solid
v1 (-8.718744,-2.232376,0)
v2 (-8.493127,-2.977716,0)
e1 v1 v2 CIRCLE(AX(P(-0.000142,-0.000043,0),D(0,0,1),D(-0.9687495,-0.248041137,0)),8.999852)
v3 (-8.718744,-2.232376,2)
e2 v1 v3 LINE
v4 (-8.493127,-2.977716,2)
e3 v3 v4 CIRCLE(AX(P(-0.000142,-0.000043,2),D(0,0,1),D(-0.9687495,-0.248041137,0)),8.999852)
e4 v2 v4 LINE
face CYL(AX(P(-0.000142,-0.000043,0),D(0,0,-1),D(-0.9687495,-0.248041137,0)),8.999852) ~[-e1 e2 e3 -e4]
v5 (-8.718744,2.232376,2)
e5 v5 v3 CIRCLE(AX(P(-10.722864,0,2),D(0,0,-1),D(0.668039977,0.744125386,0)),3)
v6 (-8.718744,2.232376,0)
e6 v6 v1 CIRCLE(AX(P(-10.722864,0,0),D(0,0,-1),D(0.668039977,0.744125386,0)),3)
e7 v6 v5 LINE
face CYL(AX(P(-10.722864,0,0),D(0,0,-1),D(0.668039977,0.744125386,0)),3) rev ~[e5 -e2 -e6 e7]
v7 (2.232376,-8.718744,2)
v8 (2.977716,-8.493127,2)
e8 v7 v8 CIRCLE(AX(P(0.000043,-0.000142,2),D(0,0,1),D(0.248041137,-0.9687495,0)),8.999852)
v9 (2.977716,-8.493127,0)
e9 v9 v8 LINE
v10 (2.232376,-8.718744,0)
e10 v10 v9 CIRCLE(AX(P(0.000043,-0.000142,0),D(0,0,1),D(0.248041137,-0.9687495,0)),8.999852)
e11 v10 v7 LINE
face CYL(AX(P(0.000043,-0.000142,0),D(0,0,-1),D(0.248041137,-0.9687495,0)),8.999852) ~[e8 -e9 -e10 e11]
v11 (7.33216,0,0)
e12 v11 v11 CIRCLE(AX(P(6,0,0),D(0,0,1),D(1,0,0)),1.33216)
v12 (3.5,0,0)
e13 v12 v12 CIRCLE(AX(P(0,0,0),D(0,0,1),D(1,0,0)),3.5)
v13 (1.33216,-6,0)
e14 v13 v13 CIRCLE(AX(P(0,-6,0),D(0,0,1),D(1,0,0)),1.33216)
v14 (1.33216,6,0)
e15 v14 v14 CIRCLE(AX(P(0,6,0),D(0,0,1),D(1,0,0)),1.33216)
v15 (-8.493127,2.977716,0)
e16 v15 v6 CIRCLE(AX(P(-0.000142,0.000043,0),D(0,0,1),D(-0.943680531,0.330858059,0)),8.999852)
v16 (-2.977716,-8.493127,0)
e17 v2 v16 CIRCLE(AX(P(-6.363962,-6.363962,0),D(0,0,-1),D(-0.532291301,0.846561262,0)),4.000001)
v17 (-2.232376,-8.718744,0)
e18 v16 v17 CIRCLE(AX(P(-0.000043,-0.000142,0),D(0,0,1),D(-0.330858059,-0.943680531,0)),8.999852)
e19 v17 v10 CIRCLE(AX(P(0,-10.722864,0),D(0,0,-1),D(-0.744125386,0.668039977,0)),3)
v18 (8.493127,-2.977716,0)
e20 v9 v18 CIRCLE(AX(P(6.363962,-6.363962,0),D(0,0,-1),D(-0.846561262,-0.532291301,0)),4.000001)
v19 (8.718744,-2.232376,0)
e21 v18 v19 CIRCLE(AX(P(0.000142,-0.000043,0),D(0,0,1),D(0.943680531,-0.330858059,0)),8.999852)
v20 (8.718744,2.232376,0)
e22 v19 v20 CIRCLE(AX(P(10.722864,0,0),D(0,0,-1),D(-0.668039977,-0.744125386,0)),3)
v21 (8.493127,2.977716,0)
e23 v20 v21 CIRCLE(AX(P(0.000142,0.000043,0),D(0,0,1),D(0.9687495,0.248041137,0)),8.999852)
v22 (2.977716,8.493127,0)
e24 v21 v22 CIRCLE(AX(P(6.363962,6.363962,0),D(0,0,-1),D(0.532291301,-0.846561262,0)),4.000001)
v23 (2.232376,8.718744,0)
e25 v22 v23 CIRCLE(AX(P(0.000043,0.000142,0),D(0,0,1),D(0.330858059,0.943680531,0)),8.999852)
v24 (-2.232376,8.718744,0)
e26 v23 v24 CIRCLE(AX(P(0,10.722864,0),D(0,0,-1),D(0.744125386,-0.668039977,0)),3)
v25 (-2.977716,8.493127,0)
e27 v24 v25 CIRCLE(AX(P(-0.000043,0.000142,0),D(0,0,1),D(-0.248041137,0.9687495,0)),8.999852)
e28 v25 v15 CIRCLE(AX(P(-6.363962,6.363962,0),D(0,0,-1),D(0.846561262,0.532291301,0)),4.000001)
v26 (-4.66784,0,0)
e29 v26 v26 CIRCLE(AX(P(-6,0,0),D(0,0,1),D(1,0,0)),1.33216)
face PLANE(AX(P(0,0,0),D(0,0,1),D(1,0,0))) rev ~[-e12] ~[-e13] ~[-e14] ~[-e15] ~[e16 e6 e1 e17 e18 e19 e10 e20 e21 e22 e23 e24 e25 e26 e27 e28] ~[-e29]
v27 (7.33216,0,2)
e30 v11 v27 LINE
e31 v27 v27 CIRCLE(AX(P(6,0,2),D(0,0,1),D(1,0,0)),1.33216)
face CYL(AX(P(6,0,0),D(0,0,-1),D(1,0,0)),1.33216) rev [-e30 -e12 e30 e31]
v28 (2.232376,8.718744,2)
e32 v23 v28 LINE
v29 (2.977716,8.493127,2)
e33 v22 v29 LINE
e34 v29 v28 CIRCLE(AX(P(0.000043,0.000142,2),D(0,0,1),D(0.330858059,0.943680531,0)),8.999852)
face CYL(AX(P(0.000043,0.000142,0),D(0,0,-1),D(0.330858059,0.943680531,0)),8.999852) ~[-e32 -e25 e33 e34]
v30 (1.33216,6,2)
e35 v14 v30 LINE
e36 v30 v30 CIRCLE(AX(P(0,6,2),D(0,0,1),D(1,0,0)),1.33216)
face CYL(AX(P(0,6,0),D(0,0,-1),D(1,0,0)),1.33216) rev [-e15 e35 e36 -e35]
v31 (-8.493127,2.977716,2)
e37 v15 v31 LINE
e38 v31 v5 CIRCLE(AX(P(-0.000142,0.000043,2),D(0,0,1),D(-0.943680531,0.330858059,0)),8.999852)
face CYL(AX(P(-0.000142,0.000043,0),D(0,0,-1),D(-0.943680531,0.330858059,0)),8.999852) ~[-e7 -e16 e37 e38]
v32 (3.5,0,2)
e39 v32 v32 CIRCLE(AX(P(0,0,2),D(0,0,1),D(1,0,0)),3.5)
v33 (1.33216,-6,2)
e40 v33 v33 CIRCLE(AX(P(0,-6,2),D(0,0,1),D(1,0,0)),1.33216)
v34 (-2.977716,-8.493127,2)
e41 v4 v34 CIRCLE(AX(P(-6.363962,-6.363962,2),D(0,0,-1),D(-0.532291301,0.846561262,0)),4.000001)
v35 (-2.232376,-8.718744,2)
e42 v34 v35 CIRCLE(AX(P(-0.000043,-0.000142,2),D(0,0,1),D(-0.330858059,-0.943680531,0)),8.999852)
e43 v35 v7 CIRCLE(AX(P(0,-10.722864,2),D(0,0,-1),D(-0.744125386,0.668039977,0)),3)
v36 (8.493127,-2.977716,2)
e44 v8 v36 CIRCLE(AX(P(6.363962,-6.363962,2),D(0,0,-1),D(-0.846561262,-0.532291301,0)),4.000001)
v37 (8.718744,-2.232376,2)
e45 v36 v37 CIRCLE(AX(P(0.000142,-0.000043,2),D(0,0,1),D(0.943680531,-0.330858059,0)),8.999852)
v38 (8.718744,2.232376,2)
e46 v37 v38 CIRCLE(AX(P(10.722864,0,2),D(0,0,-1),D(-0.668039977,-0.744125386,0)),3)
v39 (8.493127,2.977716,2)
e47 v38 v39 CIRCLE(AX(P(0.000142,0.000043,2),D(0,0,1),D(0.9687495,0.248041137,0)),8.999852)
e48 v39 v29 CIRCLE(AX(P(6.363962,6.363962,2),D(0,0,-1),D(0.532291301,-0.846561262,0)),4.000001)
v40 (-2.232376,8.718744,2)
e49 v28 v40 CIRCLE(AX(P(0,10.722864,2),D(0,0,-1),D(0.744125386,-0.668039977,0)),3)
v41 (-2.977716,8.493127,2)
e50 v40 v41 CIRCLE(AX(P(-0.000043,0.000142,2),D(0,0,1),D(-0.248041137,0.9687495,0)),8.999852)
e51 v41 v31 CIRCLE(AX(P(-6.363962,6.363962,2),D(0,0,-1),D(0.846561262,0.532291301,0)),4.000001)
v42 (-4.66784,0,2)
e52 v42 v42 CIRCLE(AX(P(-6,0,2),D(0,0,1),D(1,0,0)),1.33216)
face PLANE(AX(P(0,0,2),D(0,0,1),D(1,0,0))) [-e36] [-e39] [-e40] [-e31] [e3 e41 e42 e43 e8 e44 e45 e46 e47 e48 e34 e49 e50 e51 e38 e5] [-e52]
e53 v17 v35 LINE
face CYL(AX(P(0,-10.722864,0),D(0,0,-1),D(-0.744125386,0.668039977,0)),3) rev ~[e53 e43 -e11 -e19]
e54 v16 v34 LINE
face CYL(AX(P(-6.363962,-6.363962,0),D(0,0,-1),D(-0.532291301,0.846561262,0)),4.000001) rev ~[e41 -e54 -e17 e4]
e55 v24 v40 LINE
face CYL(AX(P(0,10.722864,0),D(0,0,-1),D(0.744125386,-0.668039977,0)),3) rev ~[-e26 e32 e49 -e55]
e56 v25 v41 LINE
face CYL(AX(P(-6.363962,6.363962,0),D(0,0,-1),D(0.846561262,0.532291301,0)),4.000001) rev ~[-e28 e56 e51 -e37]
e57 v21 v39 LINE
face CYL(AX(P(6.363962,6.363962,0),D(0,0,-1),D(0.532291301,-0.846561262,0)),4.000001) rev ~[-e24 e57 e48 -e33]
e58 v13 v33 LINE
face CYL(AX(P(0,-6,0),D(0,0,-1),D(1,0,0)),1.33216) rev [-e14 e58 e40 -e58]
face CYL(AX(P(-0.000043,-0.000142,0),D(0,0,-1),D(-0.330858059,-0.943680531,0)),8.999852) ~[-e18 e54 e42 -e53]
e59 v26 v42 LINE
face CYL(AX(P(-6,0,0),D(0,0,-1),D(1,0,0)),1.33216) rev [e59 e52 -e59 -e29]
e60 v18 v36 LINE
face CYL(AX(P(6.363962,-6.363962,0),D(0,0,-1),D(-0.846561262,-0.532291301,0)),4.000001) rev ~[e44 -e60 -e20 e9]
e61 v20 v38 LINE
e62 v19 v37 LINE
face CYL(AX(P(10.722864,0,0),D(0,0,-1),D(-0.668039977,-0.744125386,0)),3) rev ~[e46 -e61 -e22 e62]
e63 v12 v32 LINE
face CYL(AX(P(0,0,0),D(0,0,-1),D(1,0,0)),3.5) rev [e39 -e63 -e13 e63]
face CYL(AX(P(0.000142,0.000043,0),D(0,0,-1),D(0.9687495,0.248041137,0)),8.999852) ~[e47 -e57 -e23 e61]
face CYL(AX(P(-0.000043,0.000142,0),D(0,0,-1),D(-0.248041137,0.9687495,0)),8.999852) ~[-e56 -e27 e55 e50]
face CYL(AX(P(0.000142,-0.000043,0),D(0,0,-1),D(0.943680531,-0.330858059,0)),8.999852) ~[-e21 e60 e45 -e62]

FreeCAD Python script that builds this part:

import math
import FreeCAD as App
import Part
import Sketcher
from FreeCAD import Vector

doc = App.newDocument("Part")
body = doc.addObject("PartDesign::Body", "Body")

# Sketch on XY plane
sketch1 = body.newObject("Sketcher::SketchObject", "Sketch")
sketch1.AttachmentSupport = (doc.getObject("XY_Plane"), [""])
sketch1.MapMode = "FlatFace"
sketch1.addGeometry(Part.ArcOfCircle(Part.Circle(Vector(-6.363962, -6.363962, 0), Vector(0, 0, 1), 4.000001), math.radians(-32.1604), math.radians(122.1604)), False)
sketch1.addGeometry(Part.ArcOfCircle(Part.Circle(Vector(-0.000043, -0.000142, 0), Vector(0, 0, 1), 8.999852), math.radians(-109.320864), math.radians(-104.361627)), False)
sketch1.addGeometry(Part.ArcOfCircle(Part.Circle(Vector(0, -10.722864, 0), Vector(0, 0, 1), 3), math.radians(41.915969), math.radians(138.084031)), False)
sketch1.addGeometry(Part.ArcOfCircle(Part.Circle(Vector(0.000043, -0.000142, 0), Vector(0, 0, 1), 8.999852), math.radians(-75.638373), math.radians(-70.679136)), False)
sketch1.addGeometry(Part.ArcOfCircle(Part.Circle(Vector(6.363962, -6.363962, 0), Vector(0, 0, 1), 4.000001), math.radians(57.8396), math.radians(212.1604)), False)
sketch1.addGeometry(Part.ArcOfCircle(Part.Circle(Vector(0.000142, -0.000043, 0), Vector(0, 0, 1), 8.999852), math.radians(-19.320864), math.radians(-14.361627)), False)
sketch1.addGeometry(Part.ArcOfCircle(Part.Circle(Vector(10.722864, 0, 0), Vector(0, 0, 1), 3), math.radians(131.915969), math.radians(228.084031)), False)
sketch1.addGeometry(Part.ArcOfCircle(Part.Circle(Vector(0.000142, 0.000043, 0), Vector(0, 0, 1), 8.999852), math.radians(14.361627), math.radians(19.320864)), False)
sketch1.addGeometry(Part.ArcOfCircle(Part.Circle(Vector(6.363962, 6.363962, 0), Vector(0, 0, 1), 4.000001), math.radians(147.8396), math.radians(302.1604)), False)
sketch1.addGeometry(Part.ArcOfCircle(Part.Circle(Vector(0.000043, 0.000142, 0), Vector(0, 0, 1), 8.999852), math.radians(70.679136), math.radians(75.638373)), False)
sketch1.addGeometry(Part.ArcOfCircle(Part.Circle(Vector(0, 10.722864, 0), Vector(0, 0, 1), 3), math.radians(-138.084031), math.radians(-41.915969)), False)
sketch1.addGeometry(Part.ArcOfCircle(Part.Circle(Vector(-0.000043, 0.000142, 0), Vector(0, 0, 1), 8.999852), math.radians(104.361627), math.radians(109.320864)), False)
sketch1.addGeometry(Part.ArcOfCircle(Part.Circle(Vector(-6.363962, 6.363962, 0), Vector(0, 0, 1), 4.000001), math.radians(-122.1604), math.radians(32.1604)), False)
sketch1.addGeometry(Part.ArcOfCircle(Part.Circle(Vector(-0.000142, 0.000043, 0), Vector(0, 0, 1), 8.999852), math.radians(160.679136), math.radians(165.638373)), False)
sketch1.addGeometry(Part.ArcOfCircle(Part.Circle(Vector(-10.722864, 0, 0), Vector(0, 0, 1), 3), math.radians(-48.084031), math.radians(48.084031)), False)
sketch1.addGeometry(Part.ArcOfCircle(Part.Circle(Vector(-0.000142, -0.000043, 0), Vector(0, 0, 1), 8.999852), math.radians(-165.638373), math.radians(-160.679136)), False)
sketch1.addGeometry(Part.Circle(Vector(0, -6, 0), Vector(0, 0, 1), 1.33216), False)
sketch1.addGeometry(Part.Circle(Vector(-6, 0, 0), Vector(0, 0, 1), 1.33216), False)
sketch1.addGeometry(Part.Circle(Vector(0, 0, 0), Vector(0, 0, 1), 3.5), False)
sketch1.addGeometry(Part.Circle(Vector(6, 0, 0), Vector(0, 0, 1), 1.33216), False)
sketch1.addGeometry(Part.Circle(Vector(0, 6, 0), Vector(0, 0, 1), 1.33216), False)
sketch1.addConstraint(Sketcher.Constraint("Coincident", 0, 1, 1, 1))
sketch1.addConstraint(Sketcher.Constraint("Coincident", 1, 2, 2, 2))
sketch1.addConstraint(Sketcher.Constraint("Coincident", 2, 1, 3, 1))
sketch1.addConstraint(Sketcher.Constraint("Coincident", 3, 2, 4, 2))
sketch1.addConstraint(Sketcher.Constraint("Coincident", 4, 1, 5, 1))
sketch1.addConstraint(Sketcher.Constraint("Coincident", 5, 2, 6, 2))
sketch1.addConstraint(Sketcher.Constraint("Coincident", 6, 1, 7, 1))
sketch1.addConstraint(Sketcher.Constraint("Coincident", 7, 2, 8, 2))
sketch1.addConstraint(Sketcher.Constraint("Coincident", 8, 1, 9, 1))
sketch1.addConstraint(Sketcher.Constraint("Coincident", 9, 2, 10, 2))
sketch1.addConstraint(Sketcher.Constraint("Coincident", 10, 1, 11, 1))
sketch1.addConstraint(Sketcher.Constraint("Coincident", 11, 2, 12, 2))
sketch1.addConstraint(Sketcher.Constraint("Coincident", 12, 1, 13, 1))
sketch1.addConstraint(Sketcher.Constraint("Coincident", 13, 2, 14, 2))
sketch1.addConstraint(Sketcher.Constraint("Coincident", 14, 1, 15, 1))
sketch1.addConstraint(Sketcher.Constraint("Coincident", 15, 2, 0, 2))
sketch1.addConstraint(Sketcher.Constraint("Coincident", 18, 3, -1, 1))
sketch1.addConstraint(Sketcher.Constraint("Equal", 1, 3))
sketch1.addConstraint(Sketcher.Constraint("Equal", 0, 4))
sketch1.addConstraint(Sketcher.Constraint("Equal", 3, 5))
sketch1.addConstraint(Sketcher.Constraint("Equal", 2, 6))
sketch1.addConstraint(Sketcher.Constraint("Equal", 5, 7))
sketch1.addConstraint(Sketcher.Constraint("Equal", 4, 8))
sketch1.addConstraint(Sketcher.Constraint("Equal", 7, 9))
sketch1.addConstraint(Sketcher.Constraint("Equal", 6, 10))
sketch1.addConstraint(Sketcher.Constraint("Equal", 9, 11))
sketch1.addConstraint(Sketcher.Constraint("Equal", 8, 12))
sketch1.addConstraint(Sketcher.Constraint("Equal", 11, 13))
sketch1.addConstraint(Sketcher.Constraint("Equal", 10, 14))
sketch1.addConstraint(Sketcher.Constraint("Equal", 13, 15))
sketch1.addConstraint(Sketcher.Constraint("Equal", 16, 17))
sketch1.addConstraint(Sketcher.Constraint("Equal", 17, 19))
sketch1.addConstraint(Sketcher.Constraint("Equal", 19, 20))
sketch1.addConstraint(Sketcher.Constraint("Symmetric", 0, 3, 8, 3, -1, 1))
sketch1.addConstraint(Sketcher.Constraint("Symmetric", 1, 3, 9, 3, -1, 1))
sketch1.addConstraint(Sketcher.Constraint("Symmetric", 2, 3, 10, 3, -1, 1))
sketch1.addConstraint(Sketcher.Constraint("Symmetric", 3, 3, 11, 3, -1, 1))
sketch1.addConstraint(Sketcher.Constraint("Symmetric", 4, 3, 12, 3, -1, 1))
sketch1.addConstraint(Sketcher.Constraint("Symmetric", 5, 3, 13, 3, -1, 1))
sketch1.addConstraint(Sketcher.Constraint("Symmetric", 6, 3, 14, 3, -1, 1))
sketch1.addConstraint(Sketcher.Constraint("Symmetric", 7, 3, 15, 3, -1, 1))
sketch1.addConstraint(Sketcher.Constraint("Symmetric", 17, 3, 19, 3, -1, 1))
sketch1.addConstraint(Sketcher.Constraint("Symmetric", 16, 3, 20, 3, -1, 1))
sketch1.addConstraint(Sketcher.Constraint("Symmetric", 1, 3, 3, 3, -2))
sketch1.addConstraint(Sketcher.Constraint("Symmetric", 0, 3, 4, 3, -2))
sketch1.addConstraint(Sketcher.Constraint("Symmetric", 7, 3, 13, 3, -2))
sketch1.addConstraint(Sketcher.Constraint("PointOnObject", 2, 3, -2))
sketch1.addConstraint(Sketcher.Constraint("PointOnObject", 6, 3, -1))
sketch1.addConstraint(Sketcher.Constraint("PointOnObject", 16, 3, -2))
sketch1.addConstraint(Sketcher.Constraint("PointOnObject", 17, 3, -1))
sketch1.addConstraint(Sketcher.Constraint("Diameter", 18, 7.0))
sketch1.addConstraint(Sketcher.Constraint("Radius", 0, 4.000001))
sketch1.addConstraint(Sketcher.Constraint("Radius", 2, 3.0))
sketch1.addConstraint(Sketcher.Constraint("DistanceY", 16, 3, -1, 1, 6.0))
sketch1.addConstraint(Sketcher.Constraint("DistanceX", 17, 3, -1, 1, 6.0))
sketch1.addConstraint(Sketcher.Constraint("Diameter", 16, 2.66432))
sketch1.addConstraint(Sketcher.Constraint("Radius", 1, 8.999852))
sketch1.addConstraint(Sketcher.Constraint("DistanceX", 0, 3, -1, 1, 6.363962))
sketch1.addConstraint(Sketcher.Constraint("DistanceY", 0, 3, -1, 1, 6.363962))
sketch1.addConstraint(Sketcher.Constraint("DistanceX", 0, 3, 1, 3, 6.363919))
sketch1.addConstraint(Sketcher.Constraint("DistanceY", 0, 3, 1, 3, 6.363819))
sketch1.addConstraint(Sketcher.Constraint("DistanceY", 2, 3, 1, 3, 10.722721))
sketch1.addConstraint(Sketcher.Constraint("DistanceX", 5, 3, 4, 3, 6.363819))
sketch1.addConstraint(Sketcher.Constraint("DistanceY", 4, 3, 5, 3, 6.363919))
sketch1.addConstraint(Sketcher.Constraint("DistanceX", 5, 3, 6, 3, 10.722721))
pad1 = body.newObject("PartDesign::Pad", "Pad")
pad1.Profile = sketch1
pad1.Length = 2

doc.recompute()
